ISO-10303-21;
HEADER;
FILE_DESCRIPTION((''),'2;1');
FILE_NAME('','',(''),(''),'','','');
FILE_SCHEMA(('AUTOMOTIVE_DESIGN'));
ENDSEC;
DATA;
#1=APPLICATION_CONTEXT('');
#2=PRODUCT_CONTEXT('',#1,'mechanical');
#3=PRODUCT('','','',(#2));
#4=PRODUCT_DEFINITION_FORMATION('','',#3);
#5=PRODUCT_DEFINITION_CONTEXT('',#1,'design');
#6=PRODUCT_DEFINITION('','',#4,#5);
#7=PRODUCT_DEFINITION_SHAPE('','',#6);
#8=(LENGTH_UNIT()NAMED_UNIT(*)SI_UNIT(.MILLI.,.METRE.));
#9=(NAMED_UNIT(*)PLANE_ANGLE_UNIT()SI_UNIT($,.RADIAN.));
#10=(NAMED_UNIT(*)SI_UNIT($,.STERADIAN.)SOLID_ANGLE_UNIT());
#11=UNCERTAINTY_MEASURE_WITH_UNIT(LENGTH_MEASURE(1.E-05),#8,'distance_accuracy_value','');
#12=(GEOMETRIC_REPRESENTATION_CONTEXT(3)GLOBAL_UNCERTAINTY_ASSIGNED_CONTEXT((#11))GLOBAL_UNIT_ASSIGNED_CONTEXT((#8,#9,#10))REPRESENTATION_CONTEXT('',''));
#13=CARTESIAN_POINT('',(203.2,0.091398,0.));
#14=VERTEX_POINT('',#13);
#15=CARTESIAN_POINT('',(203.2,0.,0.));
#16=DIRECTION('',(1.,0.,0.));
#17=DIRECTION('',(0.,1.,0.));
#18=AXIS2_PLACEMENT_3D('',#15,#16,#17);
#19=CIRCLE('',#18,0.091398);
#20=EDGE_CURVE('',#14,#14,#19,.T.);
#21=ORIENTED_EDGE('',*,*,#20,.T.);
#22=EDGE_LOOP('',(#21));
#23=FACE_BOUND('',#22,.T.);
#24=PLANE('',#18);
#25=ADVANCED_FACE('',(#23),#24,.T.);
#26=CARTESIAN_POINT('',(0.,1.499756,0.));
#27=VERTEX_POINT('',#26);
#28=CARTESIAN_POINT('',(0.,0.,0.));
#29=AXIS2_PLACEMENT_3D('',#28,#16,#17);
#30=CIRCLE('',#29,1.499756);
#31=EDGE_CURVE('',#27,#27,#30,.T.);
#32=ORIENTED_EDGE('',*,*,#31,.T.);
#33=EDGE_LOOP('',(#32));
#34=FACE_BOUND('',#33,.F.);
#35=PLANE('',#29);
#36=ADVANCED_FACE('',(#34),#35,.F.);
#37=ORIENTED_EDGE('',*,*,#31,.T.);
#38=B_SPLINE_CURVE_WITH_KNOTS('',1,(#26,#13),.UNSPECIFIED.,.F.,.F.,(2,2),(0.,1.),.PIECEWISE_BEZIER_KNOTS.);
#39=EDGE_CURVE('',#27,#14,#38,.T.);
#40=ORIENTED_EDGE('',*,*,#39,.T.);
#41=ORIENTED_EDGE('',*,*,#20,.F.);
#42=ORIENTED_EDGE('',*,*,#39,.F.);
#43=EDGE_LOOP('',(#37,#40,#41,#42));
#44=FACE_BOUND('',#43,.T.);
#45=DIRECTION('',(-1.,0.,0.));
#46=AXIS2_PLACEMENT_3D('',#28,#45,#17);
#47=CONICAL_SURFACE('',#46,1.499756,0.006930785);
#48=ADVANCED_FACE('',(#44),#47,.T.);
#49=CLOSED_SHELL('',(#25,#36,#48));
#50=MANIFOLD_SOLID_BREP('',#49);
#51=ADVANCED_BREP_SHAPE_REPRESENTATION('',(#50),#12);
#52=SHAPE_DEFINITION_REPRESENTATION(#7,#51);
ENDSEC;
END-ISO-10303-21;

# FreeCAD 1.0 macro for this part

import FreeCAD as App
import Part
import Sketcher

doc = App.newDocument("Part")
body = doc.addObject("PartDesign::Body", "Body")

# Sketch on YZ plane
sketch1 = body.newObject("Sketcher::SketchObject", "Sketch")
sketch1.AttachmentSupport = (doc.getObject("YZ_Plane"), [""])
sketch1.MapMode = "FlatFace"
sketch1.addGeometry(Part.Circle(App.Vector(0, 0, 0), App.Vector(0, 0, 1), 1.5), False)
sketch1.addConstraint([
    Sketcher.Constraint("Coincident", 0, 3, -1, 1),
    Sketcher.Constraint("Diameter", 0, 2.999512),
])

# Sketch on YZ plane
sketch2 = body.newObject("Sketcher::SketchObject", "Sketch001")
sketch2.AttachmentSupport = (doc.getObject("YZ_Plane"), [""])
sketch2.MapMode = "FlatFace"
sketch2.AttachmentOffset = App.Placement(App.Vector(0, 0, 203.2), App.Rotation())
sketch2.addGeometry(Part.Circle(App.Vector(0, 0, 0), App.Vector(0, 0, 1), 0.09), False)
sketch2.addConstraint([
    Sketcher.Constraint("Coincident", 0, 3, -1, 1),
    Sketcher.Constraint("Diameter", 0, 0.182796),
])

additiveloft = body.newObject("PartDesign::AdditiveLoft", "AdditiveLoft")
additiveloft.Profile = sketch1
additiveloft.Sections = [sketch2]

doc.recompute()
